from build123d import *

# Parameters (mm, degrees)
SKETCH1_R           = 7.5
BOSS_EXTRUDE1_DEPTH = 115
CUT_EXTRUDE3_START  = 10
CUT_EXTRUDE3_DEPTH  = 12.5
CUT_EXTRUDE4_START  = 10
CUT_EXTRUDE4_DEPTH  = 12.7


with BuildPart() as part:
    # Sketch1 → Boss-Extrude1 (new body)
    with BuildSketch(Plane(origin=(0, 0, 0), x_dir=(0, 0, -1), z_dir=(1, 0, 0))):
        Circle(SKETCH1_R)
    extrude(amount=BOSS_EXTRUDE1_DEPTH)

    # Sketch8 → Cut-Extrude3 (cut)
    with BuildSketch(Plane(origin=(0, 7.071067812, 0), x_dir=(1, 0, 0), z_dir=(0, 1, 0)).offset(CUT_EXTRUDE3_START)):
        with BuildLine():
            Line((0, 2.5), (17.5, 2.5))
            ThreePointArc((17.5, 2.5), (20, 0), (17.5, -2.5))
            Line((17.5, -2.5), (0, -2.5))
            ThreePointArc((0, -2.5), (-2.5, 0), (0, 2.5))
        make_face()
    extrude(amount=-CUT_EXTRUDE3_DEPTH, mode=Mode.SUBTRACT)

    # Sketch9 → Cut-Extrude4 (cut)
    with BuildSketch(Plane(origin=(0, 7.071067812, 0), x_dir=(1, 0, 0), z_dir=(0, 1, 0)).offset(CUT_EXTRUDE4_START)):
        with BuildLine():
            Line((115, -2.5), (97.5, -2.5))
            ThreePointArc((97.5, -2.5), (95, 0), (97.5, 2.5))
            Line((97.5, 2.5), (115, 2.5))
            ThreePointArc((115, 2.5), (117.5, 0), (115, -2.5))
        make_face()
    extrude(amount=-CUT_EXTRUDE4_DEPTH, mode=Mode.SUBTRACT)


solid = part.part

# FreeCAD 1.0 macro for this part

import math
import FreeCAD as App
import Part
import Sketcher

V = App.Vector
Q = App.Units.Quantity

doc = App.newDocument("Part")
params = doc.addObject("Spreadsheet::Sheet", "Params")
for row, (alias, value) in enumerate([
    ("sketch1_diameter", "15 mm"),
    ("pad1_length", "115 mm"),
    ("sketch2_radius", "2.5 mm"),
    ("sketch2_width", "17.5 mm"),
    ("pocket1_length", "12.5 mm"),
    ("sketch3_radius", "2.5 mm"),
    ("sketch3_width", "17.5 mm"),
    ("pocket2_length", "12.7 mm"),
], start=1):
    params.set(f"A{row}", alias)
    params.set(f"B{row}", "=" + value)
    params.setAlias(f"B{row}", alias)

body = doc.addObject("PartDesign::Body", "Body")

sketch1 = body.newObject("Sketcher::SketchObject", "Sketch")
sketch1.AttachmentSupport = (doc.getObject("YZ_Plane"), [""])
sketch1.MapMode = "FlatFace"
sketch1.addGeometry(Part.Circle(V(0, 0, 0), V(0, 0, 1), 8), False)
sketch1.addConstraint([
    Sketcher.Constraint("Coincident", 0, 3, -1, 1),
    Sketcher.Constraint("Diameter", 0, Q("15 mm")),
])
sketch1.setExpression("Constraints[1]", "Params.sketch1_diameter")
pad1 = body.newObject("PartDesign::Pad", "Pad")
pad1.Profile = sketch1
pad1.setExpression("Length", "Params.pad1_length")

sketch2 = body.newObject("Sketcher::SketchObject", "Sketch001")
sketch2.AttachmentSupport = (doc.getObject("XZ_Plane"), [""])
sketch2.MapMode = "FlatFace"
sketch2.AttachmentOffset = App.Placement(V(0, 0, -17.071068), App.Rotation())
sketch2.addGeometry([
    Part.LineSegment(V(17.5, -2.5, 0), V(0, -2.5, 0)),
    Part.ArcOfCircle(Part.Circle(V(0, 0, 0), V(0, 0, 1), 2.5), math.radians(90), math.radians(270)),
    Part.LineSegment(V(0, 2.5, 0), V(17.5, 2.5, 0)),
    Part.ArcOfCircle(Part.Circle(V(17.5, 0, 0), V(0, 0, 1), 2.5), math.radians(-90), math.radians(90)),
], False)
sketch2.addConstraint([
    Sketcher.Constraint("Tangent", 0, 2, 1, 2),
    Sketcher.Constraint("Tangent", 1, 1, 2, 1),
    Sketcher.Constraint("Tangent", 2, 2, 3, 2),
    Sketcher.Constraint("Tangent", 3, 1, 0, 1),
    Sketcher.Constraint("Horizontal", 0),
    Sketcher.Constraint("Horizontal", 2),
    Sketcher.Constraint("Coincident", 1, 3, -1, 1),
    Sketcher.Constraint("Radius", 1, Q("2.5 mm")),
    Sketcher.Constraint("DistanceX", 0, 2, 0, 1, Q("17.5 mm")),
])
sketch2.setExpression("Constraints[7]", "Params.sketch2_radius")
sketch2.setExpression("Constraints[8]", "Params.sketch2_width")
pocket1 = body.newObject("PartDesign::Pocket", "Pocket")
pocket1.Profile = sketch2
pocket1.setExpression("Length", "Params.pocket1_length")
pocket1.Reversed = True

sketch3 = body.newObject("Sketcher::SketchObject", "Sketch002")
sketch3.AttachmentSupport = (doc.getObject("XZ_Plane"), [""])
sketch3.MapMode = "FlatFace"
sketch3.AttachmentOffset = App.Placement(V(0, 0, -17.071068), App.Rotation())
sketch3.addGeometry([
    Part.LineSegment(V(97.5, 2.5, 0), V(115, 2.5, 0)),
    Part.ArcOfCircle(Part.Circle(V(115, 0, 0), V(0, 0, 1), 2.5), math.radians(-90), math.radians(90)),
    Part.LineSegment(V(115, -2.5, 0), V(97.5, -2.5, 0)),
    Part.ArcOfCircle(Part.Circle(V(97.5, 0, 0), V(0, 0, 1), 2.5), math.radians(90), math.radians(270)),
], False)
sketch3.addConstraint([
    Sketcher.Constraint("Tangent", 0, 2, 1, 2),
    Sketcher.Constraint("Tangent", 1, 1, 2, 1),
    Sketcher.Constraint("Tangent", 2, 2, 3, 2),
    Sketcher.Constraint("Tangent", 3, 1, 0, 1),
    Sketcher.Constraint("Horizontal", 0),
    Sketcher.Constraint("Horizontal", 2),
    Sketcher.Constraint("PointOnObject", 1, 3, -1),
    Sketcher.Constraint("Radius", 1, Q("2.5 mm")),
    Sketcher.Constraint("DistanceX", 0, 1, 0, 2, Q("17.5 mm")),
    Sketcher.Constraint("DistanceX", -1, 1, 1, 3, Q("115 mm")),
])
sketch3.setExpression("Constraints[7]", "Params.sketch3_radius")
sketch3.setExpression("Constraints[8]", "Params.sketch3_width")
pocket2 = body.newObject("PartDesign::Pocket", "Pocket001")
pocket2.Profile = sketch3
pocket2.setExpression("Length", "Params.pocket2_length")
pocket2.Reversed = True

doc.recompute()
